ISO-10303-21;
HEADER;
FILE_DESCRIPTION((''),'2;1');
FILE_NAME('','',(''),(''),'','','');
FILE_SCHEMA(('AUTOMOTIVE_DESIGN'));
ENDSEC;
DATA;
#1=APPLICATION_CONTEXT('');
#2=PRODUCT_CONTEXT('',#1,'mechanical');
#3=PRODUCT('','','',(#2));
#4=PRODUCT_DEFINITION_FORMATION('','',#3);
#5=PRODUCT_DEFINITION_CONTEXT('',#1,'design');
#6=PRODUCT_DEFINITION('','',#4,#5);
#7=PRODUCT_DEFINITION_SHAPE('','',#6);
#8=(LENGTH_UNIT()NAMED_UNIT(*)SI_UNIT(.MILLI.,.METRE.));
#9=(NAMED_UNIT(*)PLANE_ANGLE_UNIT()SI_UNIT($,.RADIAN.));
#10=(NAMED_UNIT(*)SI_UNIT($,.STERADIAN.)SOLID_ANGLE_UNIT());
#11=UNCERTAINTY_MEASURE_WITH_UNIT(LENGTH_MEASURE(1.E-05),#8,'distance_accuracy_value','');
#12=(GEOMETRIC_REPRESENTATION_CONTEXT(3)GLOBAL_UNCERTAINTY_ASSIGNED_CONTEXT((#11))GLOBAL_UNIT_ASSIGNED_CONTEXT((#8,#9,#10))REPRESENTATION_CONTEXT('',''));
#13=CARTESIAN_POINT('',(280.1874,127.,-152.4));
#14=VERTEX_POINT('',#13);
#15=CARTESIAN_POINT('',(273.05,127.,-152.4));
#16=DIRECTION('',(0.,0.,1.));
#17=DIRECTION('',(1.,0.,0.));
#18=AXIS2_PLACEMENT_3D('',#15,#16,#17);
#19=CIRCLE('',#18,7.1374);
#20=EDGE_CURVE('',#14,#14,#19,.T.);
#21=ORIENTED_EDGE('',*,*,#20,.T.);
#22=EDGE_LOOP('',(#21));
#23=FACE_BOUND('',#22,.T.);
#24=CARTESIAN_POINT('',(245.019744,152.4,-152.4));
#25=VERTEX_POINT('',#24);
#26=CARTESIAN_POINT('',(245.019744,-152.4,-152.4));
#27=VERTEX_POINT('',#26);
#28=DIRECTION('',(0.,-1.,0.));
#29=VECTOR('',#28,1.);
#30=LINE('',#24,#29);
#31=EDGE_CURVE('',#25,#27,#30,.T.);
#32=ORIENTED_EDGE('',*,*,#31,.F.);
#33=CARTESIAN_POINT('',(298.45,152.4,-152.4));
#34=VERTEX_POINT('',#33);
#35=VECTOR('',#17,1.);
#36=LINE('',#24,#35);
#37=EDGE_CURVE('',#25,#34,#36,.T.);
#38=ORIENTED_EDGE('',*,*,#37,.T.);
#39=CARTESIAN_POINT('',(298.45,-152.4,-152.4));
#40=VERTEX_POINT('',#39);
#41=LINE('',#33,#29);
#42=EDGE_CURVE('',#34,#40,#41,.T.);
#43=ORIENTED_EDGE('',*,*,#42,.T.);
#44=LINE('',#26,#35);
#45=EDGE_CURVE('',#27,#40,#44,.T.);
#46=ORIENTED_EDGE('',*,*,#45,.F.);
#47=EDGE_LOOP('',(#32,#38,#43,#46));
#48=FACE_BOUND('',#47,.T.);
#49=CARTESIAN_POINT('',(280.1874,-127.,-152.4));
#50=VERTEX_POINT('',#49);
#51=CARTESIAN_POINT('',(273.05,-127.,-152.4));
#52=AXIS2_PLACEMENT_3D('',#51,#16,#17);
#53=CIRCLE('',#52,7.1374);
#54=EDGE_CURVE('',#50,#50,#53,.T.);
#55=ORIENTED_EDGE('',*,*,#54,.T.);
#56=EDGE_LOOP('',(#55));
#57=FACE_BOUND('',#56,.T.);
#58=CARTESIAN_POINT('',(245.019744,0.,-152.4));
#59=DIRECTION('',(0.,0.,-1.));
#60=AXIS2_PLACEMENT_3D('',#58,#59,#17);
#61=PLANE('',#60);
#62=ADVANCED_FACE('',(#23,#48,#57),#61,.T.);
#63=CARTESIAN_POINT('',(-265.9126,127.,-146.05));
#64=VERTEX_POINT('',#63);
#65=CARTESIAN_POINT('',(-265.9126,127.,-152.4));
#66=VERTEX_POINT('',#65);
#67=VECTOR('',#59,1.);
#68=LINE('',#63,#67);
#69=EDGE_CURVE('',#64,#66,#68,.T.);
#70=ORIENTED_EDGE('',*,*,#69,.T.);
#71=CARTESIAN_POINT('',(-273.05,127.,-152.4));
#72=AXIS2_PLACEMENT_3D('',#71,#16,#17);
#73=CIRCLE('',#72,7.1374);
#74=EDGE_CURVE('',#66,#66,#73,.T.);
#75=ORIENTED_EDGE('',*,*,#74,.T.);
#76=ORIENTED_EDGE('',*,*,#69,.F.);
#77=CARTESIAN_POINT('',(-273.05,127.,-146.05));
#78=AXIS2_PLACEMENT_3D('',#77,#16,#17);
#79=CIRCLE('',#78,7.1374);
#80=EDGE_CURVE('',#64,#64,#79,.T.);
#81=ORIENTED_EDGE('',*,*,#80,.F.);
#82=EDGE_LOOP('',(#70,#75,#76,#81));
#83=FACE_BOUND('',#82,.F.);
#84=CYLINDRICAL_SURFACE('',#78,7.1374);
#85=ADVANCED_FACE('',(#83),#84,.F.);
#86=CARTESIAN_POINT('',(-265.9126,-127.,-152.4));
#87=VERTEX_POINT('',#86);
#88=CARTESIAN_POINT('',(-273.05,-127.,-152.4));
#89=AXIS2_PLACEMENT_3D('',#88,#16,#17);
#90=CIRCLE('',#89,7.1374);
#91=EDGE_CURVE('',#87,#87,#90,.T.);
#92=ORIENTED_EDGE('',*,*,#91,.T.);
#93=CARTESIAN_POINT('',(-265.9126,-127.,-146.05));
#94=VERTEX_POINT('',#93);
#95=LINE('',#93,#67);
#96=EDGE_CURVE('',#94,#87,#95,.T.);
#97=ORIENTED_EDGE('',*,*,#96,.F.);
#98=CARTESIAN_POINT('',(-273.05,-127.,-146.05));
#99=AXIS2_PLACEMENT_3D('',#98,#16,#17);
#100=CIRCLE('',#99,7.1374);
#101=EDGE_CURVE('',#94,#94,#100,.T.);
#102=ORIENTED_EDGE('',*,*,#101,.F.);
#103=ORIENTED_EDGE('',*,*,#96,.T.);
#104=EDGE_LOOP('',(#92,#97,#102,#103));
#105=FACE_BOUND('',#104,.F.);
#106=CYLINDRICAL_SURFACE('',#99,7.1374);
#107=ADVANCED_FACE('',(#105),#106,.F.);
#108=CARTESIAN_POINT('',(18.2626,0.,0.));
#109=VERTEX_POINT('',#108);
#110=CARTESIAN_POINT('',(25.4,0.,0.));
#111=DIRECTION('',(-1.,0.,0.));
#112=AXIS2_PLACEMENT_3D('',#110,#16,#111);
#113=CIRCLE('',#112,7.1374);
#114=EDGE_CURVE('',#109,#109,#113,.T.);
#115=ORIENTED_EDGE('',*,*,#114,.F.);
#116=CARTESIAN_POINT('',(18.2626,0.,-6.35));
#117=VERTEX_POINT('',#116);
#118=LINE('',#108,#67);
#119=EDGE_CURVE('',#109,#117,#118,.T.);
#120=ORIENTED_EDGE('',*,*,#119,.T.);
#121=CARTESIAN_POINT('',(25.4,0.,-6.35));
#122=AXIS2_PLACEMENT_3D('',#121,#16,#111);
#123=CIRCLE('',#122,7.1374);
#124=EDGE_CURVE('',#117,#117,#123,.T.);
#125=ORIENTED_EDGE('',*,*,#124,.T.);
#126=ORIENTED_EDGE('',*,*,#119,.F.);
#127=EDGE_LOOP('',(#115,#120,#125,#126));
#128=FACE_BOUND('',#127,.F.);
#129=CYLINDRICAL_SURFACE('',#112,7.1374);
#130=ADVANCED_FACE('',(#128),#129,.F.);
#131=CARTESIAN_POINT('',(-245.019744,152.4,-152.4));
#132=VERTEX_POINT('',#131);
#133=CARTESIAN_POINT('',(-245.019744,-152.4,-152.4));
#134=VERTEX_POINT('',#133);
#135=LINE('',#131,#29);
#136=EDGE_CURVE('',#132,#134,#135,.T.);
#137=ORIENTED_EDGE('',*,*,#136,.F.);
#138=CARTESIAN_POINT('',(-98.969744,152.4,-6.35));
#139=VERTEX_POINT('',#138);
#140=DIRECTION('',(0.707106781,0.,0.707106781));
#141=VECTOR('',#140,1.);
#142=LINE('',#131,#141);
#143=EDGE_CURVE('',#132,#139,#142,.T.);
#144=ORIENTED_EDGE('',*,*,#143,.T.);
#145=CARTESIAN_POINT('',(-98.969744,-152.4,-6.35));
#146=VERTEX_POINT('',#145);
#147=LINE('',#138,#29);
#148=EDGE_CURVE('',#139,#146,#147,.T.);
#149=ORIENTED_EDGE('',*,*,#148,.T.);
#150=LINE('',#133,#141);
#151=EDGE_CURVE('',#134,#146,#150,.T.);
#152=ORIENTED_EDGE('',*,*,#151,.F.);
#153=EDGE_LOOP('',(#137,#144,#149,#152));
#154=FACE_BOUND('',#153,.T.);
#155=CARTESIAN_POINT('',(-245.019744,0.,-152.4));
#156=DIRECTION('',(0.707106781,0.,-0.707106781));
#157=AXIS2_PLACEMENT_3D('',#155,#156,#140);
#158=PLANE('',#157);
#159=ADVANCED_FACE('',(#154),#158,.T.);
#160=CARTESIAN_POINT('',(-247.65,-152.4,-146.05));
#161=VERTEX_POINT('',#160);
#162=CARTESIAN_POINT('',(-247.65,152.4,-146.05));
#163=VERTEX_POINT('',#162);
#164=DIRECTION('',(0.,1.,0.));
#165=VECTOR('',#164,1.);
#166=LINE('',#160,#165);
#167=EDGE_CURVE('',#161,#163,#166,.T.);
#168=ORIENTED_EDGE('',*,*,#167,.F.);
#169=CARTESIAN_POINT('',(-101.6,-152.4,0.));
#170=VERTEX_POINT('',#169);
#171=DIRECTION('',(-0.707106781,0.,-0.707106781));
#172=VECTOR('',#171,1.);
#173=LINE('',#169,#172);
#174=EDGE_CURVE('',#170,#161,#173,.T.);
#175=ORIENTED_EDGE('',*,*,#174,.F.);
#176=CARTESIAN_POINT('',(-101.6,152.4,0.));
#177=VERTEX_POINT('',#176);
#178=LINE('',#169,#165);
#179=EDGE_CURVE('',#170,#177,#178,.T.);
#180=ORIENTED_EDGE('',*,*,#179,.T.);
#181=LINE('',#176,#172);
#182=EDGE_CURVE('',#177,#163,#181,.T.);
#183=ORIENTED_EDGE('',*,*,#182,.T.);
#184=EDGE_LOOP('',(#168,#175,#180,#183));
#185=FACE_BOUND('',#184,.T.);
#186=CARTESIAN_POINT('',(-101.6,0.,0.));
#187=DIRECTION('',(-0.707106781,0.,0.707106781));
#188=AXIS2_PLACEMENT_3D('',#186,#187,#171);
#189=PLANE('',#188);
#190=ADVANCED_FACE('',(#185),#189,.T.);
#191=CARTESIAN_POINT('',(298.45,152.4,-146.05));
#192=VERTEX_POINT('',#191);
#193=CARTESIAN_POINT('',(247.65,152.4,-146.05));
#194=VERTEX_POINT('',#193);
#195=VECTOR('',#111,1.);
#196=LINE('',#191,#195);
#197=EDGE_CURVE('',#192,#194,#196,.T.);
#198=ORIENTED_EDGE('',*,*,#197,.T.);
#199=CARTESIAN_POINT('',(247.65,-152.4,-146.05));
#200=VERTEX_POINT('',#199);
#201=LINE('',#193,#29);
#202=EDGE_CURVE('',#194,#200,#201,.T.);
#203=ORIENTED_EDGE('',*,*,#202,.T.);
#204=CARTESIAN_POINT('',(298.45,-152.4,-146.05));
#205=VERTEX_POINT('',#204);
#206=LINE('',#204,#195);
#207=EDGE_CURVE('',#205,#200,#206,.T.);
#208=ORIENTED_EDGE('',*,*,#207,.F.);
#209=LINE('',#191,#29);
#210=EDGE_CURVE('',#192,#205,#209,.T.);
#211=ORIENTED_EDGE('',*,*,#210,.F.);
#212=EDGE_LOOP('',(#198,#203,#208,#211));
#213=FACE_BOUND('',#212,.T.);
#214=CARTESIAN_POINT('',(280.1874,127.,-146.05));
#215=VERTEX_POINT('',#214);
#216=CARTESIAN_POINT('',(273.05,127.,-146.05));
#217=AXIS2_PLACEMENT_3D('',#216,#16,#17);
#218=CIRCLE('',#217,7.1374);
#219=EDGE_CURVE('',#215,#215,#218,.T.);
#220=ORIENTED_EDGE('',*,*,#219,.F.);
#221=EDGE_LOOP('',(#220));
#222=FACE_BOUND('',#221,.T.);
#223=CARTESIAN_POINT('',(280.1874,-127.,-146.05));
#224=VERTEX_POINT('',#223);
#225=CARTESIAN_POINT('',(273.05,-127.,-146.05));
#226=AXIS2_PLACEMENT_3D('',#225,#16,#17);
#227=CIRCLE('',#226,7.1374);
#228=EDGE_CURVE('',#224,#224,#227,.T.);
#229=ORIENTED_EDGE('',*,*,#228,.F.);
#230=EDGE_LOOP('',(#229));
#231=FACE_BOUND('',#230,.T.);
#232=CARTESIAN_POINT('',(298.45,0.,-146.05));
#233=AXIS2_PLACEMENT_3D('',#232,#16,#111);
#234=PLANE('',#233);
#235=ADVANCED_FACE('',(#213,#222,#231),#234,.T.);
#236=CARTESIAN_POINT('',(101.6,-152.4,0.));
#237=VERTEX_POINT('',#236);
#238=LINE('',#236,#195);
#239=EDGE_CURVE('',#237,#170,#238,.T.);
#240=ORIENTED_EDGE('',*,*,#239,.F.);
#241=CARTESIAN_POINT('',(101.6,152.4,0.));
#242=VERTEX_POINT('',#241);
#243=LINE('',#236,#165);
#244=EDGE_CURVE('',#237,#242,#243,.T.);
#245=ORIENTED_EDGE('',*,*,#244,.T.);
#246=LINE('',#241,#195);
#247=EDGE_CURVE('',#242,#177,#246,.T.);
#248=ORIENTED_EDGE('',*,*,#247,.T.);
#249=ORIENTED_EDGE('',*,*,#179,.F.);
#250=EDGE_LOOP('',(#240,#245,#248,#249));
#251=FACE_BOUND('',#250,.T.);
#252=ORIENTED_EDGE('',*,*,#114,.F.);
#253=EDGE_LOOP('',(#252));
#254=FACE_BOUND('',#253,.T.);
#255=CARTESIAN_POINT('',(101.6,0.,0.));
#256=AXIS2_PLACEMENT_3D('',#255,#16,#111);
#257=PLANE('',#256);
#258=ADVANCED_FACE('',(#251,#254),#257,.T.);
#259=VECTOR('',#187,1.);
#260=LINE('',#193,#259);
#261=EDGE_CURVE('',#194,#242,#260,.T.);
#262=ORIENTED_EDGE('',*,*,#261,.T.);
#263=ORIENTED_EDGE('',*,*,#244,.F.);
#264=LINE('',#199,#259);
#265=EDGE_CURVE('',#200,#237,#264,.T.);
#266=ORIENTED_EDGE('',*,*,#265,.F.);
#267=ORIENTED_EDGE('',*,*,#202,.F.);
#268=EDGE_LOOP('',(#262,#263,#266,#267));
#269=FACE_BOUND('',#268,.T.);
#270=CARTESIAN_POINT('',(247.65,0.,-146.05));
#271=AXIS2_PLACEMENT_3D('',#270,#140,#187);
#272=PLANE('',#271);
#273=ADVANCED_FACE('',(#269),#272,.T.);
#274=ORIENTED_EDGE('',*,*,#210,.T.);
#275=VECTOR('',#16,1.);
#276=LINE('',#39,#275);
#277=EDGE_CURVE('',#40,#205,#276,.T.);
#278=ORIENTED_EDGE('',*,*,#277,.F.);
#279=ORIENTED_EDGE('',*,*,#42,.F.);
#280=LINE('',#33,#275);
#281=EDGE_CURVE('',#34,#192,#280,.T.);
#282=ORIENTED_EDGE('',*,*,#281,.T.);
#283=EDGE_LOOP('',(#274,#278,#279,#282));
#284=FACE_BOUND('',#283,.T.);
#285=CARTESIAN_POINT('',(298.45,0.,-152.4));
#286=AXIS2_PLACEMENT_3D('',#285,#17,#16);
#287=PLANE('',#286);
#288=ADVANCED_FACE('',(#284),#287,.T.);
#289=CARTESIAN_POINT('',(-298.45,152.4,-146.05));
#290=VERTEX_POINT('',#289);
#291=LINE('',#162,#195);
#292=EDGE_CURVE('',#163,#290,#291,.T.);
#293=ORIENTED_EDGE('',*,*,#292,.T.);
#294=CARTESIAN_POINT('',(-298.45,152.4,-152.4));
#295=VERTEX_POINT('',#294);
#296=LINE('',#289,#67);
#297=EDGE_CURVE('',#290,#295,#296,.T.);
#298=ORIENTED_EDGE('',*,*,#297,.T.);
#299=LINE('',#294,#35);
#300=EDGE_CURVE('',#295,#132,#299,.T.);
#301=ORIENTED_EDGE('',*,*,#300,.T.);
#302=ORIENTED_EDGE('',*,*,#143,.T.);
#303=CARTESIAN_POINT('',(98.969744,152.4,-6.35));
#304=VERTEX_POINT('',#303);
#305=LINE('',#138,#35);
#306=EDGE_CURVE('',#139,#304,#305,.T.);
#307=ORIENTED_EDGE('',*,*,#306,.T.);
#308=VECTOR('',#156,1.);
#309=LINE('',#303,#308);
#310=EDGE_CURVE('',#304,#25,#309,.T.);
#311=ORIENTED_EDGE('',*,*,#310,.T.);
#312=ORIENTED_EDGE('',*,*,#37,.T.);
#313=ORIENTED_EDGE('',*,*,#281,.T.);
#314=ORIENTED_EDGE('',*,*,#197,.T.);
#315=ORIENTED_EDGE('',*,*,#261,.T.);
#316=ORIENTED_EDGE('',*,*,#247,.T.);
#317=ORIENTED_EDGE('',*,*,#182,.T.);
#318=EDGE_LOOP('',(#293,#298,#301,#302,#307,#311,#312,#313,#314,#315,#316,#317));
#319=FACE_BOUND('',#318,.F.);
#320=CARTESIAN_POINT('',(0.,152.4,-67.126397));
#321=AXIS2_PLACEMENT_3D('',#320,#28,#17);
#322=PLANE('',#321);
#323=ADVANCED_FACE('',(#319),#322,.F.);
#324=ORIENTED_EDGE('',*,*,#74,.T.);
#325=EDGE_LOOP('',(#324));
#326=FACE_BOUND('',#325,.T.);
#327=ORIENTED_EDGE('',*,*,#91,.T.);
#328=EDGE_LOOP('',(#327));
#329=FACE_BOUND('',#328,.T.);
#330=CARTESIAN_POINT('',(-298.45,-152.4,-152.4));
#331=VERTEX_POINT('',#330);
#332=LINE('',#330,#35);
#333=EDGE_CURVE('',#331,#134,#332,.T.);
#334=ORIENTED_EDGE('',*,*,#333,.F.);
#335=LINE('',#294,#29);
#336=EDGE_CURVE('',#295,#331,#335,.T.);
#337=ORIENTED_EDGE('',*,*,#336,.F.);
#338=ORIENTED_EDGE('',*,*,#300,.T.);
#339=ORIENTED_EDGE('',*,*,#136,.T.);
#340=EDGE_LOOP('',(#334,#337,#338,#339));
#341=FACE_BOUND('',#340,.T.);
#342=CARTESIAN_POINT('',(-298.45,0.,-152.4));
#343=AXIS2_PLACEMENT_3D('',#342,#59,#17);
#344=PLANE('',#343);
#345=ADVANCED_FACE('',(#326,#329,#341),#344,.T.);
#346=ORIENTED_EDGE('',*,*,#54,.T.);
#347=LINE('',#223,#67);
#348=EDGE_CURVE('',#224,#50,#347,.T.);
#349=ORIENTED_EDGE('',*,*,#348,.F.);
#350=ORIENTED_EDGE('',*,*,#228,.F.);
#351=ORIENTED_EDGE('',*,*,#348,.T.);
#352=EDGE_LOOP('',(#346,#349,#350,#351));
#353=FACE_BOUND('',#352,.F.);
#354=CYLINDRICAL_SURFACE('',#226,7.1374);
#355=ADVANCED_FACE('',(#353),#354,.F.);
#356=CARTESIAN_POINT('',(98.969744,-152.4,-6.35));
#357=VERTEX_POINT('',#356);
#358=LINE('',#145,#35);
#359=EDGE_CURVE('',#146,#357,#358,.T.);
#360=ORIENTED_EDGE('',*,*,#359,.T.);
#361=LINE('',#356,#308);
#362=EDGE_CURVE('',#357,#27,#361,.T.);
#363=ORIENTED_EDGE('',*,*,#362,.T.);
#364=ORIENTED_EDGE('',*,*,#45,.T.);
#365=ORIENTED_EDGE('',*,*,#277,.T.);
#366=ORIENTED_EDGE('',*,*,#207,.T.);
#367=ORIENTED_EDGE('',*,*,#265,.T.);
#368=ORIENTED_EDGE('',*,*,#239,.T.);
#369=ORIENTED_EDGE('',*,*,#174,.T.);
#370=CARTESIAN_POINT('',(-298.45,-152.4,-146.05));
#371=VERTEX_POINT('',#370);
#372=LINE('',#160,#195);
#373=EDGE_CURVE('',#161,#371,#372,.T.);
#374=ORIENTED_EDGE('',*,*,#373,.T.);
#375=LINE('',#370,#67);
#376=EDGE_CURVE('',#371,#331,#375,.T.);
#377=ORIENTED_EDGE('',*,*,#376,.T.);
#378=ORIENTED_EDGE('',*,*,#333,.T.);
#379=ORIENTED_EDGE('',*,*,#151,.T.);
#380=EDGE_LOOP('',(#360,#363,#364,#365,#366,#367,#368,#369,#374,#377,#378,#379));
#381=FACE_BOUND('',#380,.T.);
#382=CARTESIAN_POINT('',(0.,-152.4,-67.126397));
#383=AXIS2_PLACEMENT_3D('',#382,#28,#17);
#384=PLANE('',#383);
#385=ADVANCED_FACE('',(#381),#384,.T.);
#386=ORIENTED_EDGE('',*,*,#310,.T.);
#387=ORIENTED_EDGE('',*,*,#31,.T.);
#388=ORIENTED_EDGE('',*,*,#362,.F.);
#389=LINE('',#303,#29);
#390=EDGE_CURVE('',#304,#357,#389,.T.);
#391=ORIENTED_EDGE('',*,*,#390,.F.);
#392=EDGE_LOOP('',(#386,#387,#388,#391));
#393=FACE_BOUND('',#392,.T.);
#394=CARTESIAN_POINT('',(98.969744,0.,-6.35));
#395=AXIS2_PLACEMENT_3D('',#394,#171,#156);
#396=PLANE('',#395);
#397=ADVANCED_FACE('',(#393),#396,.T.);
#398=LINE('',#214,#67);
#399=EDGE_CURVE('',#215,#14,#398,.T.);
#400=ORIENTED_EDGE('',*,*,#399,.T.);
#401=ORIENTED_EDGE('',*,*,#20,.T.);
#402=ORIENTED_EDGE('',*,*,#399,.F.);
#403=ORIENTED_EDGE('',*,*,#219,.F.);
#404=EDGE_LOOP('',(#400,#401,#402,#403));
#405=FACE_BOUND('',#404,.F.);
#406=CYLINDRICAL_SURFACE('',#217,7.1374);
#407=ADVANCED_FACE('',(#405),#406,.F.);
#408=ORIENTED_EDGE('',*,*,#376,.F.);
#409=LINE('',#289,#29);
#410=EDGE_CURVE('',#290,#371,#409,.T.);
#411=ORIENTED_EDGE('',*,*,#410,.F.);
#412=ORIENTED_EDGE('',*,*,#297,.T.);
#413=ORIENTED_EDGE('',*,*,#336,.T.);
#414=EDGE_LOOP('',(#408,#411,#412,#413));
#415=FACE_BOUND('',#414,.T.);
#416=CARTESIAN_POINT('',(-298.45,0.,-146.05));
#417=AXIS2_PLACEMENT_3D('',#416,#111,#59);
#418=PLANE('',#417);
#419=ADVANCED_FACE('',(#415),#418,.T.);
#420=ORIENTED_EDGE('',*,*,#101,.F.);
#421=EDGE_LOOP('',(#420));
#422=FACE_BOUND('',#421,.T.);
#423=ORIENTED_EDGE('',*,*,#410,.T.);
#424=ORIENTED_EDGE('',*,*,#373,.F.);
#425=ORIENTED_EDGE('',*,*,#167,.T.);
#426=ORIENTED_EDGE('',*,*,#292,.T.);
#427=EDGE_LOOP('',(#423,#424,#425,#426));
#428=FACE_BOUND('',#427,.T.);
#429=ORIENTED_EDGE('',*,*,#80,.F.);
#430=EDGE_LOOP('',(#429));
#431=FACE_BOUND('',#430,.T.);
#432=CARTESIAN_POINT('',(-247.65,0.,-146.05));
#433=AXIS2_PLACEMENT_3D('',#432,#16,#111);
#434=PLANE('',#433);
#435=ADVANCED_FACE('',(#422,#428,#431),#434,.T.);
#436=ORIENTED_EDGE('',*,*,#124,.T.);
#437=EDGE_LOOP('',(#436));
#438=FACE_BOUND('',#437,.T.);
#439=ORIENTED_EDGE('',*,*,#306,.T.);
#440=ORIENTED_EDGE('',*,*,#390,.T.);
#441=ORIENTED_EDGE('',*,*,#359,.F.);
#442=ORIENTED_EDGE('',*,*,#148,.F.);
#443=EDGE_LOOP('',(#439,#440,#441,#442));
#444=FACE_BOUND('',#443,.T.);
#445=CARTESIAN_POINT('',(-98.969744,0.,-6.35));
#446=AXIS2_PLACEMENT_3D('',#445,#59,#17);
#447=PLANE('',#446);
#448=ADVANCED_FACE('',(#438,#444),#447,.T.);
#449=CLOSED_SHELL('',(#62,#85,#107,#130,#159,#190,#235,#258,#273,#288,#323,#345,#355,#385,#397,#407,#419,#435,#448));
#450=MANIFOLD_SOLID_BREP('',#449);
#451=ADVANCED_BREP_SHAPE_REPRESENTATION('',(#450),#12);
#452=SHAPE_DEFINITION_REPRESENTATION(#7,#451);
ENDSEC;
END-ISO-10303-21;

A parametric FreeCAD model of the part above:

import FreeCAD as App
import Part
import Sketcher
Q = App.Units.Quantity


def add_polygon(sketch, points):
    """Adds a closed chain of lines whose ends are joined by coincident constraints."""
    first, n = sketch.GeometryCount, len(points)
    for a, b in zip(points, points[1:] + points[:1]):
        sketch.addGeometry(Part.LineSegment(App.Vector(*a, 0), App.Vector(*b, 0)), False)
    for i in range(n):
        sketch.addConstraint(Sketcher.Constraint("Coincident", first + i, 2, first + (i + 1) % n, 1))

doc = App.newDocument("Part")
params = doc.addObject("Spreadsheet::Sheet", "Params")
for row, (alias, value) in enumerate([
    ("sketch1_width", "2 in"),
    ("sketch1_width2", "8 in"),
    ("sketch1_height", "0.25 in"),
    ("pad1_length", "12 in"),
    ("sketch2_diameter", "0.562 in"),
    ("sketch3_diameter", "0.562 in"),
], start=1):
    params.set(f"A{row}", alias)
    params.set(f"B{row}", "=" + value)
    params.setAlias(f"B{row}", alias)

body = doc.addObject("PartDesign::Body", "Body")

sketch1 = doc.addObject("Sketcher::SketchObject", "Sketch")
body.addObject(sketch1)
sketch1.AttachmentSupport = (doc.XZ_Plane, [""])
sketch1.MapMode = "FlatFace"
add_polygon(sketch1, [(-248, -146), (-298, -146), (-298, -152), (-245, -152), (-99, -6), (99, -6), (245, -152), (298, -152), (298, -146), (248, -146), (102, 0), (-102, 0)])
sketch1.addConstraint([
    Sketcher.Constraint("Horizontal", 0),
    Sketcher.Constraint("Vertical", 1),
    Sketcher.Constraint("Horizontal", 2),
    Sketcher.Constraint("Horizontal", 4),
    Sketcher.Constraint("Horizontal", 6),
    Sketcher.Constraint("Vertical", 7),
    Sketcher.Constraint("Horizontal", 8),
    Sketcher.Constraint("Horizontal", 10),
    Sketcher.Constraint("Symmetric", 9, 2, 10, 2, -1, 1),
    Sketcher.Constraint("Symmetric", 2, 2, 5, 2, -2),
    Sketcher.Constraint("Symmetric", 0, 2, 7, 2, -2),
    Sketcher.Constraint("Perpendicular", 3, 5),
    Sketcher.Constraint("Parallel", 5, 9),
    Sketcher.Constraint("Perpendicular", 9, 11),
    Sketcher.Constraint("Equal", 0, 8),
    Sketcher.Constraint("Equal", 5, 9),
    Sketcher.Constraint("DistanceX", 0, 2, 0, 1, Q("2 in")),
    Sketcher.Constraint("DistanceX", 10, 2, 10, 1, Q("8 in")),
    Sketcher.Constraint("DistanceY", 1, 2, -1, 1, Q("6 in")),
    Sketcher.Constraint("DistanceY", 1, 2, 1, 1, Q("0.25 in")),
    Sketcher.Constraint("DistanceX", 4, 1, 4, 2, 197.939488),
])
sketch1.setExpression("Constraints[28]", "Params.sketch1_width")
sketch1.setExpression("Constraints[29]", "Params.sketch1_width2")
sketch1.setExpression("Constraints[31]", "Params.sketch1_height")
pad1 = doc.addObject("PartDesign::Pad", "Pad")
body.addObject(pad1)
pad1.Profile = sketch1
pad1.setExpression("Length", "Params.pad1_length")
pad1.Midplane = True

sketch2 = doc.addObject("Sketcher::SketchObject", "Sketch001")
body.addObject(sketch2)
sketch2.AttachmentSupport = (doc.XY_Plane, [""])
sketch2.MapMode = "FlatFace"
sketch2.AttachmentOffset = App.Placement(App.Vector(0, 0, -5.75 * 25.4), App.Rotation())
sketch2.addGeometry([
    Part.Circle(App.Vector(-273, 127, 0), App.Vector(0, 0, 1), 7),
    Part.Circle(App.Vector(-273, -127, 0), App.Vector(0, 0, 1), 7),
    Part.Circle(App.Vector(273, 127, 0), App.Vector(0, 0, 1), 7),
    Part.Circle(App.Vector(273, -127, 0), App.Vector(0, 0, 1), 7),
], False)
sketch2.addConstraint([
    Sketcher.Constraint("Equal", 0, 1),
    Sketcher.Constraint("Equal", 1, 2),
    Sketcher.Constraint("Equal", 2, 3),
    Sketcher.Constraint("Symmetric", 1, 3, 2, 3, -1, 1),
    Sketcher.Constraint("Symmetric", 0, 3, 3, 3, -1, 1),
    Sketcher.Constraint("Symmetric", 0, 3, 2, 3, -2),
    Sketcher.Constraint("Diameter", 0, Q("0.562 in")),
    Sketcher.Constraint("DistanceY", -1, 1, 0, 3, Q("5 in")),
    Sketcher.Constraint("DistanceX", 0, 3, 2, 3, Q("21.5 in")),
])
sketch2.setExpression("Constraints[6]", "Params.sketch2_diameter")
pocket1 = doc.addObject("PartDesign::Pocket", "Pocket")
body.addObject(pocket1)
pocket1.Profile = sketch2
pocket1.Type = "ThroughAll"

sketch3 = doc.addObject("Sketcher::SketchObject", "Sketch002")
body.addObject(sketch3)
sketch3.AttachmentSupport = (doc.XY_Plane, [""])
sketch3.MapMode = "FlatFace"
sketch3.addGeometry(Part.Circle(App.Vector(25, 0, 0), App.Vector(0, 0, 1), 7), False)
sketch3.addConstraint([
    Sketcher.Constraint("PointOnObject", 0, 3, -1),
    Sketcher.Constraint("Diameter", 0, Q("0.562 in")),
    Sketcher.Constraint("DistanceX", -1, 1, 0, 3, Q("1 in")),
])
sketch3.setExpression("Constraints[1]", "Params.sketch3_diameter")
pocket2 = doc.addObject("PartDesign::Pocket", "Pocket001")
body.addObject(pocket2)
pocket2.Profile = sketch3
pocket2.Type = "ThroughAll"

doc.recompute()
